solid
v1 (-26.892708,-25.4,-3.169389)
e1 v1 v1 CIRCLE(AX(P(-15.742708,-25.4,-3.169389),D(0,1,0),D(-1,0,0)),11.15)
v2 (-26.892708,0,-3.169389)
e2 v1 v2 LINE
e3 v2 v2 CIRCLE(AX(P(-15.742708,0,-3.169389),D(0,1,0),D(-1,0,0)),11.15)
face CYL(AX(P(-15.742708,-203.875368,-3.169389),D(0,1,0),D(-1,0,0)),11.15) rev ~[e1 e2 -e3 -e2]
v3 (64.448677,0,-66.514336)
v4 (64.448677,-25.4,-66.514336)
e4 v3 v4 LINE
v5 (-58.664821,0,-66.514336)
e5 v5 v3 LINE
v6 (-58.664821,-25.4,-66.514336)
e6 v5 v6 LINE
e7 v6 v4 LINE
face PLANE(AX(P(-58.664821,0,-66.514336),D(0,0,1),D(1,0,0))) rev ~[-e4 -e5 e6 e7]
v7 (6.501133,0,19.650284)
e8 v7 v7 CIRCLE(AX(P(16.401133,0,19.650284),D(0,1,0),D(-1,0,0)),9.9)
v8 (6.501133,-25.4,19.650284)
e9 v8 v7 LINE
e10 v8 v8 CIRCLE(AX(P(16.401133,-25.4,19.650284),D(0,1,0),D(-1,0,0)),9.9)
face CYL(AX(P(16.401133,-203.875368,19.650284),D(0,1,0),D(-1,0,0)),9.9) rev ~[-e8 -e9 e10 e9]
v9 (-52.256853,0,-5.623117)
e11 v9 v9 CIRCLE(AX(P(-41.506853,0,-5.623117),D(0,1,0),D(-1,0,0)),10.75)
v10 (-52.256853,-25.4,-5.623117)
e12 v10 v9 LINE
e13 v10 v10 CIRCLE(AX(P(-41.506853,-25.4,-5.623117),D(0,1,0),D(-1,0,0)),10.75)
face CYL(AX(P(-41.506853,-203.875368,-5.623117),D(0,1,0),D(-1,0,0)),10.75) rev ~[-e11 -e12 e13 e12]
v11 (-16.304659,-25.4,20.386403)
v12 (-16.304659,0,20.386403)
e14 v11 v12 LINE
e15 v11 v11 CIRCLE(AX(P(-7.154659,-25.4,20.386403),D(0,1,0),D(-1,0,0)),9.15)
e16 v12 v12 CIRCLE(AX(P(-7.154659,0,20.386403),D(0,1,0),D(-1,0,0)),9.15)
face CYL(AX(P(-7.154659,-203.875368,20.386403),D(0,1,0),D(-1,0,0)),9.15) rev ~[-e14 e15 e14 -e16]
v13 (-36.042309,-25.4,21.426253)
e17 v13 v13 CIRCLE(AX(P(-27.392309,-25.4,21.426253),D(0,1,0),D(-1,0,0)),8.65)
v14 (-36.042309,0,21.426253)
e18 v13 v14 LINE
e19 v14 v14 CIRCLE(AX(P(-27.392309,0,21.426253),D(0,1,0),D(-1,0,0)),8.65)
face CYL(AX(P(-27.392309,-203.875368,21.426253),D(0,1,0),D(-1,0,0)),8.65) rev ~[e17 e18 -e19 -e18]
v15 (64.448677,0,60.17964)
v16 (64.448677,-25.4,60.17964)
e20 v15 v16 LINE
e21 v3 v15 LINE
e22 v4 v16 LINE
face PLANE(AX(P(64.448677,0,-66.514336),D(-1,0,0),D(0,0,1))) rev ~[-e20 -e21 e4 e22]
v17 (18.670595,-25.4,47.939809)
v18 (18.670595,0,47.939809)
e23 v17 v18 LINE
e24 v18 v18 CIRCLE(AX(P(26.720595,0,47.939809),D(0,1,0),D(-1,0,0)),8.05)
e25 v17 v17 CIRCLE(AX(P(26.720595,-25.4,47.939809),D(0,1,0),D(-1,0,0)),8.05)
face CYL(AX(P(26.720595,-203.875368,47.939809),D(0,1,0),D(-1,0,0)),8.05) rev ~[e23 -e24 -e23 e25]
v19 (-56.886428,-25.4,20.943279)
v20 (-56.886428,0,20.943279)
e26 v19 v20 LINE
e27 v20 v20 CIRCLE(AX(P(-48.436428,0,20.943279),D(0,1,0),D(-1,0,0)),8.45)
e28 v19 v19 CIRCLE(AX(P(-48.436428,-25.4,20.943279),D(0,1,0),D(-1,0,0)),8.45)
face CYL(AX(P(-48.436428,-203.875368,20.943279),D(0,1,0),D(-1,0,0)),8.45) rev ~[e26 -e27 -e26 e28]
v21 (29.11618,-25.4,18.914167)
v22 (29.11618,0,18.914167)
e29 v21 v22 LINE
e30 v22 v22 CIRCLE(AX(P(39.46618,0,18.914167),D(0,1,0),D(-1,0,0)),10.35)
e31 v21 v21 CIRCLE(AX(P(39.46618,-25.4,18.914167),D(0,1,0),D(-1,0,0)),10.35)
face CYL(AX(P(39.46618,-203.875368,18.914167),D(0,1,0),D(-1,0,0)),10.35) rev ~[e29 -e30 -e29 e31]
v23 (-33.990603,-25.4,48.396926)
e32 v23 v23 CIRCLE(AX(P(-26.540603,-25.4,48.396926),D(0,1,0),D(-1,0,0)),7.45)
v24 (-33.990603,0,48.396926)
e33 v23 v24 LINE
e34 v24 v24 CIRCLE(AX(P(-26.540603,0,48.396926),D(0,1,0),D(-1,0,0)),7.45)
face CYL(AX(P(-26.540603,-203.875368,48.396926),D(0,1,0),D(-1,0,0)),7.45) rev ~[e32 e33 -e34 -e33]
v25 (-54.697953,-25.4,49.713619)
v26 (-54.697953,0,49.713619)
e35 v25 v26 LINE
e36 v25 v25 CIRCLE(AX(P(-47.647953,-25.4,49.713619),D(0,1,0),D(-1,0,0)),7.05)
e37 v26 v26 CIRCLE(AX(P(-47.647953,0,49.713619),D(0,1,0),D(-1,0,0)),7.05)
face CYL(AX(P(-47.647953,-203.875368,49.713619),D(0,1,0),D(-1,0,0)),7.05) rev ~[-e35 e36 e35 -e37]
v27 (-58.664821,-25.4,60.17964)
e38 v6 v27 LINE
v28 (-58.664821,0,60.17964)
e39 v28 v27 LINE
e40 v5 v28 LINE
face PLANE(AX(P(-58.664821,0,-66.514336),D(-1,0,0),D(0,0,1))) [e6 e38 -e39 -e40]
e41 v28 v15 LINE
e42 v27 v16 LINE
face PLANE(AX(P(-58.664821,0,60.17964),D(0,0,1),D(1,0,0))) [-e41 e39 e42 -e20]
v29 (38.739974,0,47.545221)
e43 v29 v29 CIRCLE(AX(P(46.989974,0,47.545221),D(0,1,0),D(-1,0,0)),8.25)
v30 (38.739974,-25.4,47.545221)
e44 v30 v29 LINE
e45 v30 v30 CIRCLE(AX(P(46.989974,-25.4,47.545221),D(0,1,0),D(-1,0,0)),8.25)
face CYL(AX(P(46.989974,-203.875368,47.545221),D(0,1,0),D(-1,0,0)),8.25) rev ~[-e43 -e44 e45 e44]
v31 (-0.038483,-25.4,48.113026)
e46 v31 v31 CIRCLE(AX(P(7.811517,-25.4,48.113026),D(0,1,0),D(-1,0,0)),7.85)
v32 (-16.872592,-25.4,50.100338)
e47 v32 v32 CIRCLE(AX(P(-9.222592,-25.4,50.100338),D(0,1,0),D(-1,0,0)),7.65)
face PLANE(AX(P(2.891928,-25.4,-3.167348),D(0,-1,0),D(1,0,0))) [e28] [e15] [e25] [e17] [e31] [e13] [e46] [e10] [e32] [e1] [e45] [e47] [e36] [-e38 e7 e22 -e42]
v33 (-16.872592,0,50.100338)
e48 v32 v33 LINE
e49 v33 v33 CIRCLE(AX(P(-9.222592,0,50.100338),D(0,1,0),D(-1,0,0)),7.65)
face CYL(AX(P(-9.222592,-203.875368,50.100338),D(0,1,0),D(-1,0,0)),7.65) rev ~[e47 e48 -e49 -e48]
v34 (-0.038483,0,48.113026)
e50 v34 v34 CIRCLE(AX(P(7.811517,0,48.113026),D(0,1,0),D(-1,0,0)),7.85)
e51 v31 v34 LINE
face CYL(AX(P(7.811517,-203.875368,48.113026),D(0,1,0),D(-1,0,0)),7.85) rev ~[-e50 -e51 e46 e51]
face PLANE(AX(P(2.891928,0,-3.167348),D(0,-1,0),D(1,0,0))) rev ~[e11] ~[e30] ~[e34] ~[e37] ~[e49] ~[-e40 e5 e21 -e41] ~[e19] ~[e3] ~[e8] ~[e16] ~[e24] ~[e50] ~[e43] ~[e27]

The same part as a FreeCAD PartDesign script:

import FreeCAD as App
import Part
import Sketcher
from FreeCAD import Vector


def add_polygon(sketch, points):
    """Adds a closed chain of lines whose ends are joined by coincident constraints."""
    first, n = sketch.GeometryCount, len(points)
    for a, b in zip(points, points[1:] + points[:1]):
        sketch.addGeometry(Part.LineSegment(App.Vector(*a, 0), App.Vector(*b, 0)), False)
    for i in range(n):
        sketch.addConstraint(Sketcher.Constraint("Coincident", first + i, 2, first + (i + 1) % n, 1))

doc = App.newDocument("Part")
body = doc.addObject("PartDesign::Body", "Body")

# Sketch on XZ plane
sketch1 = body.newObject("Sketcher::SketchObject", "Sketch")
sketch1.AttachmentSupport = (doc.getObject("XZ_Plane"), [""])
sketch1.MapMode = "FlatFace"
add_polygon(sketch1, [(-58.664821, 60.17964), (-58.664821, -66.514336), (64.448677, -66.514336), (64.448677, 60.17964)])  # lines 0-3
sketch1.addConstraint([
    Sketcher.Constraint("Vertical", 0),
    Sketcher.Constraint("Horizontal", 1),
    Sketcher.Constraint("Vertical", 2),
    Sketcher.Constraint("Horizontal", 3),
    Sketcher.Constraint("DistanceX", 1, 1, 1, 2, 123.113498),
    Sketcher.Constraint("DistanceY", 0, 2, 0, 1, 126.693976),
    Sketcher.Constraint("DistanceX", 0, 2, -1, 1, 58.664821),
    Sketcher.Constraint("DistanceY", -1, 1, 2, 2, 60.17964),
])
pad1 = body.newObject("PartDesign::Pad", "Pad")
pad1.Profile = sketch1
pad1.Length = 25.4

# Sketch on XZ plane
sketch2 = body.newObject("Sketcher::SketchObject", "Sketch001")
sketch2.AttachmentSupport = (doc.getObject("XZ_Plane"), [""])
sketch2.MapMode = "FlatFace"
sketch2.AttachmentOffset = App.Placement(Vector(0, 0, 25.4), App.Rotation())
sketch2.addGeometry(Part.Circle(Vector(-47.647953, 49.713619, 0), Vector(0, 0, 1), 7.05), False)
sketch2.addConstraint([
    Sketcher.Constraint("Diameter", 0, 14.1),
    Sketcher.Constraint("DistanceY", -1, 1, 0, 3, 49.713619),
    Sketcher.Constraint("DistanceX", 0, 3, -1, 1, 47.647953),
])
doc.recompute()
hole = body.newObject("PartDesign::Hole", "Hole")
hole.Profile = sketch2
hole.ThreadType = "None"
hole.Diameter = 14.1
hole.DepthType = "ThroughAll"

# Sketch on XZ plane
sketch3 = body.newObject("Sketcher::SketchObject", "Sketch002")
sketch3.AttachmentSupport = (doc.getObject("XZ_Plane"), [""])
sketch3.MapMode = "FlatFace"
sketch3.AttachmentOffset = App.Placement(Vector(0, 0, 25.4), App.Rotation())
sketch3.addGeometry(Part.Circle(Vector(-26.540603, 48.396926, 0), Vector(0, 0, 1), 7.45), False)
sketch3.addConstraint([
    Sketcher.Constraint("Diameter", 0, 14.9),
    Sketcher.Constraint("DistanceX", 0, 3, -1, 1, 26.540603),
    Sketcher.Constraint("DistanceY", -1, 1, 0, 3, 48.396926),
])
doc.recompute()
hole2 = body.newObject("PartDesign::Hole", "Hole001")
hole2.Profile = sketch3
hole2.ThreadType = "None"
hole2.Diameter = 14.9
hole2.DepthType = "ThroughAll"

# Sketch on XZ plane
sketch4 = body.newObject("Sketcher::SketchObject", "Sketch003")
sketch4.AttachmentSupport = (doc.getObject("XZ_Plane"), [""])
sketch4.MapMode = "FlatFace"
sketch4.AttachmentOffset = App.Placement(Vector(0, 0, 25.4), App.Rotation())
sketch4.addGeometry(Part.Circle(Vector(-9.222592, 50.100338, 0), Vector(0, 0, 1), 7.65), False)
sketch4.addConstraint([
    Sketcher.Constraint("Diameter", 0, 15.3),
    Sketcher.Constraint("DistanceX", 0, 3, -1, 1, 9.222592),
    Sketcher.Constraint("DistanceY", -1, 1, 0, 3, 50.100338),
])
doc.recompute()
hole3 = body.newObject("PartDesign::Hole", "Hole002")
hole3.Profile = sketch4
hole3.ThreadType = "None"
hole3.Diameter = 15.3
hole3.DepthType = "ThroughAll"

# Sketch on XZ plane
sketch5 = body.newObject("Sketcher::SketchObject", "Sketch004")
sketch5.AttachmentSupport = (doc.getObject("XZ_Plane"), [""])
sketch5.MapMode = "FlatFace"
sketch5.AttachmentOffset = App.Placement(Vector(0, 0, 25.4), App.Rotation())
sketch5.addGeometry(Part.Circle(Vector(7.811517, 48.113026, 0), Vector(0, 0, 1), 7.85), False)
sketch5.addConstraint([
    Sketcher.Constraint("Diameter", 0, 15.7),
    Sketcher.Constraint("DistanceX", -1, 1, 0, 3, 7.811517),
    Sketcher.Constraint("DistanceY", -1, 1, 0, 3, 48.113026),
])
doc.recompute()
hole4 = body.newObject("PartDesign::Hole", "Hole003")
hole4.Profile = sketch5
hole4.ThreadType = "None"
hole4.Diameter = 15.7
hole4.DepthType = "ThroughAll"

# Sketch on XZ plane
sketch6 = body.newObject("Sketcher::SketchObject", "Sketch005")
sketch6.AttachmentSupport = (doc.getObject("XZ_Plane"), [""])
sketch6.MapMode = "FlatFace"
sketch6.AttachmentOffset = App.Placement(Vector(0, 0, 25.4), App.Rotation())
sketch6.addGeometry(Part.Circle(Vector(26.720595, 47.939809, 0), Vector(0, 0, 1), 8.05), False)
sketch6.addConstraint([
    Sketcher.Constraint("Diameter", 0, 16.1),
    Sketcher.Constraint("DistanceY", -1, 1, 0, 3, 47.939809),
    Sketcher.Constraint("DistanceX", -1, 1, 0, 3, 26.720595),
])
doc.recompute()
hole5 = body.newObject("PartDesign::Hole", "Hole004")
hole5.Profile = sketch6
hole5.ThreadType = "None"
hole5.Diameter = 16.1
hole5.DepthType = "ThroughAll"

# Sketch on XZ plane
sketch7 = body.newObject("Sketcher::SketchObject", "Sketch006")
sketch7.AttachmentSupport = (doc.getObject("XZ_Plane"), [""])
sketch7.MapMode = "FlatFace"
sketch7.AttachmentOffset = App.Placement(Vector(0, 0, 25.4), App.Rotation())
sketch7.addGeometry(Part.Circle(Vector(46.989974, 47.545221, 0), Vector(0, 0, 1), 8.25), False)
sketch7.addConstraint([
    Sketcher.Constraint("Diameter", 0, 16.5),
    Sketcher.Constraint("DistanceY", -1, 1, 0, 3, 47.545221),
    Sketcher.Constraint("DistanceX", -1, 1, 0, 3, 46.989974),
])
doc.recompute()
hole6 = body.newObject("PartDesign::Hole", "Hole005")
hole6.Profile = sketch7
hole6.ThreadType = "None"
hole6.Diameter = 16.5
hole6.DepthType = "ThroughAll"

# Sketch on XZ plane
sketch8 = body.newObject("Sketcher::SketchObject", "Sketch007")
sketch8.AttachmentSupport = (doc.getObject("XZ_Plane"), [""])
sketch8.MapMode = "FlatFace"
sketch8.AttachmentOffset = App.Placement(Vector(0, 0, 25.4), App.Rotation())
sketch8.addGeometry(Part.Circle(Vector(-48.436428, 20.943279, 0), Vector(0, 0, 1), 8.45), False)
sketch8.addConstraint([
    Sketcher.Constraint("Diameter", 0, 16.9),
    Sketcher.Constraint("DistanceY", -1, 1, 0, 3, 20.943279),
    Sketcher.Constraint("DistanceX", 0, 3, -1, 1, 48.436428),
])
doc.recompute()
hole7 = body.newObject("PartDesign::Hole", "Hole006")
hole7.Profile = sketch8
hole7.ThreadType = "None"
hole7.Diameter = 16.9
hole7.DepthType = "ThroughAll"

# Sketch on XZ plane
sketch9 = body.newObject("Sketcher::SketchObject", "Sketch008")
sketch9.AttachmentSupport = (doc.getObject("XZ_Plane"), [""])
sketch9.MapMode = "FlatFace"
sketch9.AttachmentOffset = App.Placement(Vector(0, 0, 25.4), App.Rotation())
sketch9.addGeometry(Part.Circle(Vector(-27.392309, 21.426253, 0), Vector(0, 0, 1), 8.65), False)
sketch9.addConstraint([
    Sketcher.Constraint("Diameter", 0, 17.3),
    Sketcher.Constraint("DistanceX", 0, 3, -1, 1, 27.392309),
    Sketcher.Constraint("DistanceY", -1, 1, 0, 3, 21.426253),
])
doc.recompute()
hole8 = body.newObject("PartDesign::Hole", "Hole007")
hole8.Profile = sketch9
hole8.ThreadType = "None"
hole8.Diameter = 17.3
hole8.DepthType = "ThroughAll"

# Sketch on XZ plane
sketch10 = body.newObject("Sketcher::SketchObject", "Sketch009")
sketch10.AttachmentSupport = (doc.getObject("XZ_Plane"), [""])
sketch10.MapMode = "FlatFace"
sketch10.AttachmentOffset = App.Placement(Vector(0, 0, 25.4), App.Rotation())
sketch10.addGeometry(Part.Circle(Vector(-7.154659, 20.386403, 0), Vector(0, 0, 1), 9.15), False)
sketch10.addConstraint([
    Sketcher.Constraint("Diameter", 0, 18.3),
    Sketcher.Constraint("DistanceX", 0, 3, -1, 1, 7.154659),
    Sketcher.Constraint("DistanceY", -1, 1, 0, 3, 20.386403),
])
doc.recompute()
hole9 = body.newObject("PartDesign::Hole", "Hole008")
hole9.Profile = sketch10
hole9.ThreadType = "None"
hole9.Diameter = 18.3
hole9.DepthType = "ThroughAll"

# Sketch on XZ plane
sketch11 = body.newObject("Sketcher::SketchObject", "Sketch010")
sketch11.AttachmentSupport = (doc.getObject("XZ_Plane"), [""])
sketch11.MapMode = "FlatFace"
sketch11.AttachmentOffset = App.Placement(Vector(0, 0, 25.4), App.Rotation())
sketch11.addGeometry(Part.Circle(Vector(16.401133, 19.650284, 0), Vector(0, 0, 1), 9.9), False)
sketch11.addConstraint([
    Sketcher.Constraint("Diameter", 0, 19.8),
    Sketcher.Constraint("DistanceX", -1, 1, 0, 3, 16.401133),
    Sketcher.Constraint("DistanceY", -1, 1, 0, 3, 19.650284),
])
doc.recompute()
hole10 = body.newObject("PartDesign::Hole", "Hole009")
hole10.Profile = sketch11
hole10.ThreadType = "None"
hole10.Diameter = 19.8
hole10.DepthType = "ThroughAll"

# Sketch on XZ plane
sketch12 = body.newObject("Sketcher::SketchObject", "Sketch011")
sketch12.AttachmentSupport = (doc.getObject("XZ_Plane"), [""])
sketch12.MapMode = "FlatFace"
sketch12.AttachmentOffset = App.Placement(Vector(0, 0, 25.4), App.Rotation())
sketch12.addGeometry(Part.Circle(Vector(39.46618, 18.914167, 0), Vector(0, 0, 1), 10.35), False)
sketch12.addConstraint([
    Sketcher.Constraint("Diameter", 0, 20.7),
    Sketcher.Constraint("DistanceX", -1, 1, 0, 3, 39.46618),
    Sketcher.Constraint("DistanceY", -1, 1, 0, 3, 18.914167),
])
doc.recompute()
hole11 = body.newObject("PartDesign::Hole", "Hole010")
hole11.Profile = sketch12
hole11.ThreadType = "None"
hole11.Diameter = 20.7
hole11.DepthType = "ThroughAll"

# Sketch on XZ plane
sketch13 = body.newObject("Sketcher::SketchObject", "Sketch012")
sketch13.AttachmentSupport = (doc.getObject("XZ_Plane"), [""])
sketch13.MapMode = "FlatFace"
sketch13.AttachmentOffset = App.Placement(Vector(0, 0, 25.4), App.Rotation())
sketch13.addGeometry(Part.Circle(Vector(-41.506853, -5.623117, 0), Vector(0, 0, 1), 10.75), False)
sketch13.addConstraint([
    Sketcher.Constraint("Diameter", 0, 21.5),
    Sketcher.Constraint("DistanceX", 0, 3, -1, 1, 41.506853),
    Sketcher.Constraint("DistanceY", 0, 3, -1, 1, 5.623117),
])
doc.recompute()
hole12 = body.newObject("PartDesign::Hole", "Hole011")
hole12.Profile = sketch13
hole12.ThreadType = "None"
hole12.Diameter = 21.5
hole12.DepthType = "ThroughAll"

# Sketch on XZ plane
sketch14 = body.newObject("Sketcher::SketchObject", "Sketch013")
sketch14.AttachmentSupport = (doc.getObject("XZ_Plane"), [""])
sketch14.MapMode = "FlatFace"
sketch14.AttachmentOffset = App.Placement(Vector(0, 0, 25.4), App.Rotation())
sketch14.addGeometry(Part.Circle(Vector(-15.742708, -3.169389, 0), Vector(0, 0, 1), 11.15), False)
sketch14.addConstraint([
    Sketcher.Constraint("Diameter", 0, 22.3),
    Sketcher.Constraint("DistanceY", 0, 3, -1, 1, 3.169389),
    Sketcher.Constraint("DistanceX", 0, 3, -1, 1, 15.742708),
])
doc.recompute()
hole13 = body.newObject("PartDesign::Hole", "Hole012")
hole13.Profile = sketch14
hole13.ThreadType = "None"
hole13.Diameter = 22.3
hole13.DepthType = "ThroughAll"

doc.recompute()
